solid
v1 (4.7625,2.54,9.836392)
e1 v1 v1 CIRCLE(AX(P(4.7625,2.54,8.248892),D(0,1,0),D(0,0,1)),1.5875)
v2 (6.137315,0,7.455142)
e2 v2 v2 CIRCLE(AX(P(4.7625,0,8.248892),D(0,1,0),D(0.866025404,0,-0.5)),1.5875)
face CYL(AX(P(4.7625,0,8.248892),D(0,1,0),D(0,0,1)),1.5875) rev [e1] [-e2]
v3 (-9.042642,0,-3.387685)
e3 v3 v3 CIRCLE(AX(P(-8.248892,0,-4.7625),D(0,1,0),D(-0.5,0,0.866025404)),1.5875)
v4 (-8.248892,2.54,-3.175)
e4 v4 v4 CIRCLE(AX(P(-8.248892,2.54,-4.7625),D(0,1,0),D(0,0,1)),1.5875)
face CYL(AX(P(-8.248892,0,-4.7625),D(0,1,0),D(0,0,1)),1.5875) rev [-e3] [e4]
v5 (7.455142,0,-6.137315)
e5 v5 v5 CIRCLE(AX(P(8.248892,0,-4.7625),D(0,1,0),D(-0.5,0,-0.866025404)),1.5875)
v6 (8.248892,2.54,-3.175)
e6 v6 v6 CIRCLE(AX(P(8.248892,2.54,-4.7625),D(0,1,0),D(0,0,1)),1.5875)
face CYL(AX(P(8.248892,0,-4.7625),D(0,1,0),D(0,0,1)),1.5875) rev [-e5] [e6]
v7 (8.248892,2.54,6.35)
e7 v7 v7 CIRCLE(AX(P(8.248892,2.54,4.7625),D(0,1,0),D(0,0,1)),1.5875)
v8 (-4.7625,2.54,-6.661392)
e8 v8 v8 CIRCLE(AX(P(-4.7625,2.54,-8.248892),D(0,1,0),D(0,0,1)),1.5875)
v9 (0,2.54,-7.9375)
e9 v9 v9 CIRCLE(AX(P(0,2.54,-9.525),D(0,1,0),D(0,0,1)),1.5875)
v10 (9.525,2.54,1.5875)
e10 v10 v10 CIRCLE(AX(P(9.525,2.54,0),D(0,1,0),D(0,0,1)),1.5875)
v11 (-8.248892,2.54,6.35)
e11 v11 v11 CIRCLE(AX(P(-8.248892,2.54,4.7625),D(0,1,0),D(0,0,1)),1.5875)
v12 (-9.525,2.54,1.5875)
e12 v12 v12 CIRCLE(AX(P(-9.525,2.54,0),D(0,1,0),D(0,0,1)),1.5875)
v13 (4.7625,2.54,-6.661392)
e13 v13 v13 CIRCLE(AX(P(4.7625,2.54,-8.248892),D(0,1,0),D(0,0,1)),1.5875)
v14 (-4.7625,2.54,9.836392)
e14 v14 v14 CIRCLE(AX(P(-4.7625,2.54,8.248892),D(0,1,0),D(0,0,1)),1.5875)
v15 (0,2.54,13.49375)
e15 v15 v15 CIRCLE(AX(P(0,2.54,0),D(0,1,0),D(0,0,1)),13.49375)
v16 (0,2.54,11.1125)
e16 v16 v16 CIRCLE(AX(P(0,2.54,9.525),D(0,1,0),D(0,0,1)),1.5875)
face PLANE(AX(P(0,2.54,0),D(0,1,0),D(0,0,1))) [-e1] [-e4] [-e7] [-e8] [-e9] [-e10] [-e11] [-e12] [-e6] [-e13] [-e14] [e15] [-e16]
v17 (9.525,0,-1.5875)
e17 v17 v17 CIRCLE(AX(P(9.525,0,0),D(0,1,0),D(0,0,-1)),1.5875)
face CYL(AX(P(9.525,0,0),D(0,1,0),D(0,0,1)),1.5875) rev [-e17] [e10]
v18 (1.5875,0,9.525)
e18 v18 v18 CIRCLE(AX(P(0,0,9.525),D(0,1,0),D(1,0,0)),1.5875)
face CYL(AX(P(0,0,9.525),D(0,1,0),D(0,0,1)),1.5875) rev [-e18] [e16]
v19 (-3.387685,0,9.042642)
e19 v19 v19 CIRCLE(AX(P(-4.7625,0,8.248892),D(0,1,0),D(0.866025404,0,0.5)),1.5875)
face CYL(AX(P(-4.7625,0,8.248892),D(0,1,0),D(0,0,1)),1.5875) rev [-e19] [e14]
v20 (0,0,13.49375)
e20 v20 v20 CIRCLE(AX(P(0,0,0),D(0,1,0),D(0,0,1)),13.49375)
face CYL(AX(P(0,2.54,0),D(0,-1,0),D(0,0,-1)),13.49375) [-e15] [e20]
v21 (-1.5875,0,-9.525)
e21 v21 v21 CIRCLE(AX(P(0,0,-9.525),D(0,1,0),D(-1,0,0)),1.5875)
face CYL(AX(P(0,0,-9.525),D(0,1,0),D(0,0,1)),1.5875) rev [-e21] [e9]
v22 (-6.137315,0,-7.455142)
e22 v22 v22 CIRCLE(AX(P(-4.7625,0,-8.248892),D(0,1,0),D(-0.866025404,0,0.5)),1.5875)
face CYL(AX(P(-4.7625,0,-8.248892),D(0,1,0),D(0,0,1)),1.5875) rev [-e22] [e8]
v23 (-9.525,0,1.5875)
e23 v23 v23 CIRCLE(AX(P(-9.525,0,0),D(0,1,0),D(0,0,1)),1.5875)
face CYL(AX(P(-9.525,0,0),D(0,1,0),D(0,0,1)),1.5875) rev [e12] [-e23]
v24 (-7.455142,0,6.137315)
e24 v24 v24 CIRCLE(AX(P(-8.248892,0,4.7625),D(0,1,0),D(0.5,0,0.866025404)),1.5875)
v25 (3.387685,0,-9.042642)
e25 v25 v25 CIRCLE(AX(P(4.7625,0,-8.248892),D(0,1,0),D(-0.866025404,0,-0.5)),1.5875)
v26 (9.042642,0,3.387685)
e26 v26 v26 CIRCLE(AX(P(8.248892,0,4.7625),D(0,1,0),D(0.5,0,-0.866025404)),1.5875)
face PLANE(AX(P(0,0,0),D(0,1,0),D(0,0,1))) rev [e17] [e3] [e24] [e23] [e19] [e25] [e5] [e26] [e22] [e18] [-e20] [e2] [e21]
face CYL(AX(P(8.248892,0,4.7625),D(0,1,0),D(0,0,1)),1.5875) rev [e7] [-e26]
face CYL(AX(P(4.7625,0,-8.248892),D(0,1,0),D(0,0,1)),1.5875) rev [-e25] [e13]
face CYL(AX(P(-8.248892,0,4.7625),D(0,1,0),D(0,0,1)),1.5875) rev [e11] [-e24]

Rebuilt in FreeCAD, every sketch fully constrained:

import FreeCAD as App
import Part
import Sketcher
from FreeCAD import Vector
Q = App.Units.Quantity

doc = App.newDocument("Part")
body = doc.addObject("PartDesign::Body", "Body")

# Sketch on XZ plane
sketch1 = body.newObject("Sketcher::SketchObject", "Sketch")
sketch1.AttachmentSupport = (doc.getObject("XZ_Plane"), [""])
sketch1.MapMode = "FlatFace"
sketch1.addGeometry(Part.Circle(Vector(0, 0, 0), Vector(0, 0, 1), 13), False)
sketch1.addConstraint([
    Sketcher.Constraint("Coincident", 0, 3, -1, 1),
    Sketcher.Constraint("Diameter", 0, Q("1.0625 in")),
])
pad1 = body.newObject("PartDesign::Pad", "Pad")
pad1.Profile = sketch1
pad1.Length = Q("0.1 in")
pad1.Reversed = True

# Sketch on XZ plane
sketch2 = body.newObject("Sketcher::SketchObject", "Sketch001")
sketch2.AttachmentSupport = (doc.getObject("XZ_Plane"), [""])
sketch2.MapMode = "FlatFace"
sketch2.AttachmentOffset = App.Placement(Vector(0, 0, 1), App.Rotation())
sketch2.addGeometry(Part.Circle(Vector(-9.5, 0, 0), Vector(0, 0, 1), 1.6), False)
sketch2.addConstraint([
    Sketcher.Constraint("PointOnObject", 0, 3, -1),
    Sketcher.Constraint("Diameter", 0, Q("0.125 in")),
    Sketcher.Constraint("DistanceX", 0, 3, -1, 1, Q("0.375 in")),
])
pocket1 = body.newObject("PartDesign::Pocket", "Pocket")
pocket1.Profile = sketch2
pocket1.Length = 4.54
doc.recompute()

polarpattern = body.newObject("PartDesign::PolarPattern", "PolarPattern")
polarpattern.Originals = [pocket1]
polarpattern.Axis = (doc.getObject("Y_Axis"), [""])
polarpattern.Angle = 360
polarpattern.Occurrences = 12
body.Tip = polarpattern

doc.recompute()
